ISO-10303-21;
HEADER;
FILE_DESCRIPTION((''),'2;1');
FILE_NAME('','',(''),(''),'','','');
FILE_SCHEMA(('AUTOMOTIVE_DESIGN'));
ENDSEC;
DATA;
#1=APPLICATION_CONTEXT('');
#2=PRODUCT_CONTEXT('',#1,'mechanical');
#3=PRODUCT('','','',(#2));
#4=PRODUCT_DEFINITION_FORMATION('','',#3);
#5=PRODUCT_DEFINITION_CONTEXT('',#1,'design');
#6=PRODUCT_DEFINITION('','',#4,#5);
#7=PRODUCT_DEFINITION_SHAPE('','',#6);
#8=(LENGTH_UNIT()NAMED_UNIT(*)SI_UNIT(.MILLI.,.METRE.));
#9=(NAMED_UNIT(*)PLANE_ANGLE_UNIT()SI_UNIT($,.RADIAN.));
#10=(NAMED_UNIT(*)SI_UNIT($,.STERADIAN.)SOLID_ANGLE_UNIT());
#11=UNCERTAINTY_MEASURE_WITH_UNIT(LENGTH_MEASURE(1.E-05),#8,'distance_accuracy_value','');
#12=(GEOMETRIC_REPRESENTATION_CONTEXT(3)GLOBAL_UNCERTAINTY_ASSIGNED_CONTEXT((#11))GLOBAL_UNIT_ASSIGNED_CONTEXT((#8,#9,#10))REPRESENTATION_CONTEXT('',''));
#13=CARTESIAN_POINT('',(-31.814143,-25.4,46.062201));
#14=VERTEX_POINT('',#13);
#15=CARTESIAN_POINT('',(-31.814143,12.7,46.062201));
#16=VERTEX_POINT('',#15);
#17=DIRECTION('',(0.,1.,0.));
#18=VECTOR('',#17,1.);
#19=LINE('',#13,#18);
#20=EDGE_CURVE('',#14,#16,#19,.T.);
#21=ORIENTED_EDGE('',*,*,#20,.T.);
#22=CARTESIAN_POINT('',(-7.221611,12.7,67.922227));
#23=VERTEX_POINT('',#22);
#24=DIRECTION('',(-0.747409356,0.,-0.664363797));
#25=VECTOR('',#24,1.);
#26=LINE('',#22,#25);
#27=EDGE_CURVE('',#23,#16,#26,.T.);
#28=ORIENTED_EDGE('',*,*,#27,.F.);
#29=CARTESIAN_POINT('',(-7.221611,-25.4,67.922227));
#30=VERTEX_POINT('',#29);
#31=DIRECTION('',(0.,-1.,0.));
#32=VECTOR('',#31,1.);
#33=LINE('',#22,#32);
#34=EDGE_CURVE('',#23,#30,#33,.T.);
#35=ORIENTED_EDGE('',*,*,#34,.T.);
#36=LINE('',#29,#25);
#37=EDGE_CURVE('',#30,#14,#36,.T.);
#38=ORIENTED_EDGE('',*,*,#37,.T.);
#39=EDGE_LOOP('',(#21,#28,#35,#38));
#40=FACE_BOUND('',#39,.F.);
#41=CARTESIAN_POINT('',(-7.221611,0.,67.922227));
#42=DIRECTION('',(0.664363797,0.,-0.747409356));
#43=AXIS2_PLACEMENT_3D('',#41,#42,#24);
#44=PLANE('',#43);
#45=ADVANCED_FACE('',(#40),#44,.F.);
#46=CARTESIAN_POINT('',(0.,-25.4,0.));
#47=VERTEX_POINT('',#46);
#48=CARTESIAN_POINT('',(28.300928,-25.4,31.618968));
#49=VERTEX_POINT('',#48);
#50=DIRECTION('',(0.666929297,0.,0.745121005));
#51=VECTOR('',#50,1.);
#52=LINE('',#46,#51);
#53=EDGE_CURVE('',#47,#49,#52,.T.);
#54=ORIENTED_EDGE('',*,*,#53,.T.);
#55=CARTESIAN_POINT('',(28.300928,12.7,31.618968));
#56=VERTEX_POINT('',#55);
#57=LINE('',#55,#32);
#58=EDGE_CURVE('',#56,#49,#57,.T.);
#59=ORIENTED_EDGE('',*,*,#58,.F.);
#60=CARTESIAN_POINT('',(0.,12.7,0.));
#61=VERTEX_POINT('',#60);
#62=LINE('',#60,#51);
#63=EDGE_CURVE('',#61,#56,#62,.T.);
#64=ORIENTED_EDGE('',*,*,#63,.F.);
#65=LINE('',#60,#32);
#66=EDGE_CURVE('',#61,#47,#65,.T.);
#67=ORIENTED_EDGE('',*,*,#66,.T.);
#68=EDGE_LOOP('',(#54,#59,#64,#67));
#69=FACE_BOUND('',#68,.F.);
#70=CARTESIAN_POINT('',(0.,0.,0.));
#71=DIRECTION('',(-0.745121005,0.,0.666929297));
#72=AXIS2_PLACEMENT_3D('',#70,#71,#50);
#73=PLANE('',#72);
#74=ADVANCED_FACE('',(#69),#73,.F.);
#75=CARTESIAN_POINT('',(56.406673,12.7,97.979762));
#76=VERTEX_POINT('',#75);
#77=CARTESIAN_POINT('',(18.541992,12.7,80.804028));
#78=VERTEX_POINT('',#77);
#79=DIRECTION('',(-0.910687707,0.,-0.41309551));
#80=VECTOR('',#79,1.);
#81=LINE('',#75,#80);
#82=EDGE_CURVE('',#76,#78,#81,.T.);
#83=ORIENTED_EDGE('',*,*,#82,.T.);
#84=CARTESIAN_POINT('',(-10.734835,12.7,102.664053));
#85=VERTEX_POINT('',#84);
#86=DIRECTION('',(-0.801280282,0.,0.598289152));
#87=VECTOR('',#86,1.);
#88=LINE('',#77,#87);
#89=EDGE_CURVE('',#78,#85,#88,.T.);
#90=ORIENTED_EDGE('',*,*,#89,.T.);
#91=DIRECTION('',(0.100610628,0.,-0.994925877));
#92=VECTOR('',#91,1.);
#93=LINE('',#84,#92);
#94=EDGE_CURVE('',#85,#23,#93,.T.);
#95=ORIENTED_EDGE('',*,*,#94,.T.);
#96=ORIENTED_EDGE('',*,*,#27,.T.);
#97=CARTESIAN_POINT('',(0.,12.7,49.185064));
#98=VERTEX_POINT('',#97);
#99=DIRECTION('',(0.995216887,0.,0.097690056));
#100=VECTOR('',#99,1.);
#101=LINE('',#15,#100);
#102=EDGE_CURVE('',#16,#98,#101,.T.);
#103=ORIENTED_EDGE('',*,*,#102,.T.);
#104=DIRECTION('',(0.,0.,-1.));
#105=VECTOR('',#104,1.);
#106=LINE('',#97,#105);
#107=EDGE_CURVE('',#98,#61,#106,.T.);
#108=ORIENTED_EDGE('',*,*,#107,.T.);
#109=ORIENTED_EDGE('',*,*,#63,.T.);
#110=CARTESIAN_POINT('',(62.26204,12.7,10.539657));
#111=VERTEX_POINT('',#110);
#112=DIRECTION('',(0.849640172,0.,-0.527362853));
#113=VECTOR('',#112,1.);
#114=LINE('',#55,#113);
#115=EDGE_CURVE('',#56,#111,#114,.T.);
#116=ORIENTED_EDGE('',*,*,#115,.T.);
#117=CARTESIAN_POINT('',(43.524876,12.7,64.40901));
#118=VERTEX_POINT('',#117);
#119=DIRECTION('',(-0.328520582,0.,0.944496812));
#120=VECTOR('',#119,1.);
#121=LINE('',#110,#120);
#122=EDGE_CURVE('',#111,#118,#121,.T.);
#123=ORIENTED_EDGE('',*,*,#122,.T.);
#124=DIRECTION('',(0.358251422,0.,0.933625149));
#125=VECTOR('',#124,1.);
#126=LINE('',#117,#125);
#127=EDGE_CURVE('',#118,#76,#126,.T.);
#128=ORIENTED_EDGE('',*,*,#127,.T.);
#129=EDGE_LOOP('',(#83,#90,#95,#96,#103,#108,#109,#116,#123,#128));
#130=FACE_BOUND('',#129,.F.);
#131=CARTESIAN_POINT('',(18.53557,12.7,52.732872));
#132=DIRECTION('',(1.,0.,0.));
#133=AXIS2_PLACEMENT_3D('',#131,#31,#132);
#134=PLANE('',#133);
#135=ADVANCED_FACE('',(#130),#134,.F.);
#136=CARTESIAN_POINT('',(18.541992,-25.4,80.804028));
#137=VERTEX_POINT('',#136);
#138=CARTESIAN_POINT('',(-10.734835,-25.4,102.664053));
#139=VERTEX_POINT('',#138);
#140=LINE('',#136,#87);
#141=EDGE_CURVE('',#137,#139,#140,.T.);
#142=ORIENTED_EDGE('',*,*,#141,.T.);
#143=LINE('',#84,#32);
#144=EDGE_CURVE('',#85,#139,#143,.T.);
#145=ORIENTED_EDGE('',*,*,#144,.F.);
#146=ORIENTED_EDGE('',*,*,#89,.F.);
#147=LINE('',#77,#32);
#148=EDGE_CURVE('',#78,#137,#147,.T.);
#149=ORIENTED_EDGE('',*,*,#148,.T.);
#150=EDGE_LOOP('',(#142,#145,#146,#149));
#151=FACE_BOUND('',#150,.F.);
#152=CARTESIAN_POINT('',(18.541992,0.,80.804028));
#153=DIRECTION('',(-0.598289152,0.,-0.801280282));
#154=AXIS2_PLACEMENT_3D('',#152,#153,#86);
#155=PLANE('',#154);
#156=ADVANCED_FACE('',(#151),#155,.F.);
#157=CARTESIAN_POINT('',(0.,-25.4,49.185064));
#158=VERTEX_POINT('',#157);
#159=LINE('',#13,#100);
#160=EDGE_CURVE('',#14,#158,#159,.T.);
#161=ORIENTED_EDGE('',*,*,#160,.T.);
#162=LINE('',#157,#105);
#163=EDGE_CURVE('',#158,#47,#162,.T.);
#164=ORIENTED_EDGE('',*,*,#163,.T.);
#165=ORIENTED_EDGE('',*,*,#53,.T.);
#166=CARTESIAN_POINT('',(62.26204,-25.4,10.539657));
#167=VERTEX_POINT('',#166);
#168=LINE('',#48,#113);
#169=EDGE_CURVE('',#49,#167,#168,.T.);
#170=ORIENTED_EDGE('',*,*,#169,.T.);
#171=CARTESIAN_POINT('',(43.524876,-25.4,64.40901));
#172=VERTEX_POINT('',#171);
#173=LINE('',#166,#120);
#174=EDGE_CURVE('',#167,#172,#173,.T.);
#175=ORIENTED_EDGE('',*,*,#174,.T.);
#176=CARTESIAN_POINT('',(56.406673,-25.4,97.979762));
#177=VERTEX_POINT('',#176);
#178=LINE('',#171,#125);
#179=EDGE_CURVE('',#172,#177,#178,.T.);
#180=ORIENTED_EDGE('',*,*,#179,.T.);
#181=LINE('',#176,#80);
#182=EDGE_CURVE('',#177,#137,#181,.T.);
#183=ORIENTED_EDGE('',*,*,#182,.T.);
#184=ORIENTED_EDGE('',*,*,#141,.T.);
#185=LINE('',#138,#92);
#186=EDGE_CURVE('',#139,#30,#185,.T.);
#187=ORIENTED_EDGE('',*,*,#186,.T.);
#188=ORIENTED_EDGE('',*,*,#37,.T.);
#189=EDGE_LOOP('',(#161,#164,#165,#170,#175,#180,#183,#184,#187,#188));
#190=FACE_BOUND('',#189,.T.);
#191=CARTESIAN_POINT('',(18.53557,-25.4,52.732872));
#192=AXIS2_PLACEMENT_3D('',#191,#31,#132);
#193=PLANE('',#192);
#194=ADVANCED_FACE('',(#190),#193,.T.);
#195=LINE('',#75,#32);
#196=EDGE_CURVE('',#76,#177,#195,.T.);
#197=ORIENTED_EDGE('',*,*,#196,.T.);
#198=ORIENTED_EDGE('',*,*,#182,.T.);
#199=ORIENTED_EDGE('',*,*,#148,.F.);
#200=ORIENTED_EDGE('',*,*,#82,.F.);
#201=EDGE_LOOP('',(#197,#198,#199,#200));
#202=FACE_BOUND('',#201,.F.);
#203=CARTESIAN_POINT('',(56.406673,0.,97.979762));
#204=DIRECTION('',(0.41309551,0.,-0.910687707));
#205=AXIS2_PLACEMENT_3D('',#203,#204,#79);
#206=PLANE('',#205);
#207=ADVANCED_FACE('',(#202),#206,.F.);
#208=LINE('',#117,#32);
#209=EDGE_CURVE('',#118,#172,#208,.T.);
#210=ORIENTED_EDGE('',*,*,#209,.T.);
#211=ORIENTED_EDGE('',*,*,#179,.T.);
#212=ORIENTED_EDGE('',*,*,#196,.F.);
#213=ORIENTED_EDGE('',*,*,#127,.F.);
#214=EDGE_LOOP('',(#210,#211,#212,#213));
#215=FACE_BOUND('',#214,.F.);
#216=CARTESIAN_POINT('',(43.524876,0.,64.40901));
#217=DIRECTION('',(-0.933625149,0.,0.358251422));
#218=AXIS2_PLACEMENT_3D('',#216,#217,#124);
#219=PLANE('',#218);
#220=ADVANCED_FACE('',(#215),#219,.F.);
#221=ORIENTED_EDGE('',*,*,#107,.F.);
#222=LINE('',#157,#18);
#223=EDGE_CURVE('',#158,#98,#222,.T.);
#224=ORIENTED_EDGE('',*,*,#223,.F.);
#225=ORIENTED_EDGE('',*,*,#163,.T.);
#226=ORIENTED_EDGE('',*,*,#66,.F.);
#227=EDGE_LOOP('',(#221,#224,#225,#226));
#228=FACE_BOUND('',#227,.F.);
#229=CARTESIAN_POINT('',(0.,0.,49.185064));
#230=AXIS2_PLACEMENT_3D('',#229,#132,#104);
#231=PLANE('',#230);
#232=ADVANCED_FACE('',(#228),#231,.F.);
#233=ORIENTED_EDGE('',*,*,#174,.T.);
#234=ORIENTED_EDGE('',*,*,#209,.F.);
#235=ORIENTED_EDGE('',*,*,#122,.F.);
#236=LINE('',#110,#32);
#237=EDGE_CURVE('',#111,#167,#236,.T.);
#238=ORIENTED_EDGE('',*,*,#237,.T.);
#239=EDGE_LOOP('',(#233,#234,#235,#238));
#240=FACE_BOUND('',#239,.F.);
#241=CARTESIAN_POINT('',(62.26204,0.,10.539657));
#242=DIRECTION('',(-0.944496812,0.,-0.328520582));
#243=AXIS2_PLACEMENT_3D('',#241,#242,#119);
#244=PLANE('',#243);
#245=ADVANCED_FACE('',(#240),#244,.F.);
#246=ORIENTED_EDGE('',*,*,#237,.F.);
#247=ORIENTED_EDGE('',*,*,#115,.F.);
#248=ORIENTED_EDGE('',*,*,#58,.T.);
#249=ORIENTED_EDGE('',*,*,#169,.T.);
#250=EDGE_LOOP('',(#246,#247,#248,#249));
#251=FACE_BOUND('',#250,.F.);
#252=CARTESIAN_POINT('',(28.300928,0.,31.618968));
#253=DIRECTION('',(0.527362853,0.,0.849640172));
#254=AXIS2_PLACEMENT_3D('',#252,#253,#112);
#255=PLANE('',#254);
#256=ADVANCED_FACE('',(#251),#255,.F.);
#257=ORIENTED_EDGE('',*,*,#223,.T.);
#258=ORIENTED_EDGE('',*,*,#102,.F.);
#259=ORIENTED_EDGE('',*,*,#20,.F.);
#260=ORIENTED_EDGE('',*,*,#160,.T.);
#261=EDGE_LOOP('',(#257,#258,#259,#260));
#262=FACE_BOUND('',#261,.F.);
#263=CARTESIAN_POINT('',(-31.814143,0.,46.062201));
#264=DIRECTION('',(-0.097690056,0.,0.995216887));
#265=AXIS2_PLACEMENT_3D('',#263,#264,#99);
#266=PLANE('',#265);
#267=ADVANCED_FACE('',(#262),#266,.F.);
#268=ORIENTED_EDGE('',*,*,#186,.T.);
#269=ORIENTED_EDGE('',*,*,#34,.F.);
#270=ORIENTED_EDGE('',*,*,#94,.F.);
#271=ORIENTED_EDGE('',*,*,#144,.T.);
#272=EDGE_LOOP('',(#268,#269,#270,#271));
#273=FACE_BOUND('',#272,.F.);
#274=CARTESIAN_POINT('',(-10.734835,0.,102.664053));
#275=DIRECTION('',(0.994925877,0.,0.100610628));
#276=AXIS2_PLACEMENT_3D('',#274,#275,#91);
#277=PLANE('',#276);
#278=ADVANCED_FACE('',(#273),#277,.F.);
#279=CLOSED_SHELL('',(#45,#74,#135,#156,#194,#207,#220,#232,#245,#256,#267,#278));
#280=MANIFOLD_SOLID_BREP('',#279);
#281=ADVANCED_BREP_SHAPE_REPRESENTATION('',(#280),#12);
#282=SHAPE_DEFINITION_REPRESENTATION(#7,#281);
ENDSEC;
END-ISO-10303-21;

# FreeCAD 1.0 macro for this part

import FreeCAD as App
import Part
import Sketcher
from FreeCAD import Vector
Q = App.Units.Quantity

doc = App.newDocument("Part")
body = doc.addObject("PartDesign::Body", "Body")

# Sketch on XZ plane
sketch1 = body.newObject("Sketcher::SketchObject", "Sketch")
sketch1.AttachmentSupport = (doc.getObject("XZ_Plane"), [""])
sketch1.MapMode = "FlatFace"
sketch1.addGeometry([
    Part.LineSegment(Vector(0, 49, 0), Vector(0, 0, 0)),  # 0
    Part.LineSegment(Vector(0, 0, 0), Vector(28, 32, 0)),  # 1
    Part.LineSegment(Vector(28, 32, 0), Vector(62, 11, 0)),  # 2
    Part.LineSegment(Vector(62, 11, 0), Vector(44, 64, 0)),  # 3
    Part.LineSegment(Vector(44, 64, 0), Vector(56, 98, 0)),  # 4
    Part.LineSegment(Vector(56, 98, 0), Vector(19, 81, 0)),  # 5
    Part.LineSegment(Vector(19, 81, 0), Vector(-11, 103, 0)),  # 6
    Part.LineSegment(Vector(-11, 103, 0), Vector(-7, 68, 0)),  # 7
    Part.LineSegment(Vector(-7, 68, 0), Vector(-32, 46, 0)),  # 8
    Part.LineSegment(Vector(-32, 46, 0), Vector(0, 49, 0)),  # 9
], False)
sketch1.addConstraint([
    Sketcher.Constraint("Coincident", 0, 2, 1, 1),
    Sketcher.Constraint("Coincident", 1, 2, 2, 1),
    Sketcher.Constraint("Coincident", 2, 2, 3, 1),
    Sketcher.Constraint("Coincident", 3, 2, 4, 1),
    Sketcher.Constraint("Coincident", 4, 2, 5, 1),
    Sketcher.Constraint("Coincident", 5, 2, 6, 1),
    Sketcher.Constraint("Coincident", 6, 2, 7, 1),
    Sketcher.Constraint("Coincident", 7, 2, 8, 1),
    Sketcher.Constraint("Coincident", 8, 2, 9, 1),
    Sketcher.Constraint("Coincident", 9, 2, 0, 1),
    Sketcher.Constraint("Vertical", 0),
    Sketcher.Constraint("Coincident", 0, 2, -1, 1),
    Sketcher.Constraint("Distance", 8, Q("32.903698 mm")),
    Sketcher.Constraint("DistanceY", -1, 1, 8, 2, Q("46.062201 mm")),
    Sketcher.Constraint("DistanceY", 7, 2, 5, 2, Q("12.881801 mm")),
    Sketcher.Constraint("Distance", 2, Q("39.97117 mm")),
    Sketcher.Constraint("Distance", 4, Q("35.95742 mm")),
    Sketcher.Constraint("Distance", 5, Q("41.578118 mm")),
    Sketcher.Constraint("Distance", 6, Q("36.53756 mm")),
    Sketcher.Constraint("Distance", 7, Q("34.91901 mm")),
    Sketcher.Constraint("DistanceY", 0, 2, 0, 1, Q("49.185064 mm")),
    Sketcher.Constraint("DistanceX", -1, 1, 2, 2, Q("62.26204 mm")),
    Sketcher.Constraint("DistanceY", -1, 1, 3, 2, Q("64.40901 mm")),
    Sketcher.Constraint("DistanceY", -1, 1, 4, 2, Q("97.979762 mm")),
    Sketcher.Constraint("DistanceX", -1, 1, 5, 2, Q("18.541992 mm")),
    Sketcher.Constraint("DistanceX", 7, 2, -1, 1, Q("7.221611 mm")),
    Sketcher.Constraint("DistanceX", 1, 2, 2, 2, Q("33.961112 mm")),
    Sketcher.Constraint("DistanceX", 1, 2, 3, 2, Q("15.223948 mm")),
    Sketcher.Constraint("DistanceY", 1, 2, 5, 2, Q("49.18506 mm")),
])
pad1 = body.newObject("PartDesign::Pad", "Pad")
pad1.Profile = sketch1
pad1.Length = Q("1 in")
pad1.Midplane = True

# Sketch on XZ plane
sketch2 = body.newObject("Sketcher::SketchObject", "Sketch001")
sketch2.AttachmentSupport = (doc.getObject("XZ_Plane"), [""])
sketch2.MapMode = "FlatFace"
sketch2.addGeometry([
    Part.LineSegment(Vector(0, 49, 0), Vector(0, 0, 0)),  # 0
    Part.LineSegment(Vector(0, 0, 0), Vector(28, 32, 0)),  # 1
    Part.LineSegment(Vector(28, 32, 0), Vector(62, 11, 0)),  # 2
    Part.LineSegment(Vector(62, 11, 0), Vector(44, 64, 0)),  # 3
    Part.LineSegment(Vector(44, 64, 0), Vector(56, 98, 0)),  # 4
    Part.LineSegment(Vector(56, 98, 0), Vector(19, 81, 0)),  # 5
    Part.LineSegment(Vector(19, 81, 0), Vector(-11, 103, 0)),  # 6
    Part.LineSegment(Vector(-11, 103, 0), Vector(-7, 68, 0)),  # 7
    Part.LineSegment(Vector(-7, 68, 0), Vector(-32, 46, 0)),  # 8
    Part.LineSegment(Vector(-32, 46, 0), Vector(0, 49, 0)),  # 9
], False)
sketch2.addConstraint([
    Sketcher.Constraint("Coincident", 0, 2, 1, 1),
    Sketcher.Constraint("Coincident", 1, 2, 2, 1),
    Sketcher.Constraint("Coincident", 2, 2, 3, 1),
    Sketcher.Constraint("Coincident", 3, 2, 4, 1),
    Sketcher.Constraint("Coincident", 4, 2, 5, 1),
    Sketcher.Constraint("Coincident", 5, 2, 6, 1),
    Sketcher.Constraint("Coincident", 6, 2, 7, 1),
    Sketcher.Constraint("Coincident", 7, 2, 8, 1),
    Sketcher.Constraint("Coincident", 8, 2, 9, 1),
    Sketcher.Constraint("Coincident", 9, 2, 0, 1),
    Sketcher.Constraint("Vertical", 0),
    Sketcher.Constraint("Coincident", 0, 2, -1, 1),
    Sketcher.Constraint("Distance", 8, Q("32.903698 mm")),
    Sketcher.Constraint("DistanceY", -1, 1, 8, 2, Q("46.062201 mm")),
    Sketcher.Constraint("DistanceY", 7, 2, 5, 2, Q("12.881801 mm")),
    Sketcher.Constraint("Distance", 2, Q("39.97117 mm")),
    Sketcher.Constraint("Distance", 4, Q("35.95742 mm")),
    Sketcher.Constraint("Distance", 5, Q("41.578118 mm")),
    Sketcher.Constraint("Distance", 6, Q("36.53756 mm")),
    Sketcher.Constraint("Distance", 7, Q("34.91901 mm")),
    Sketcher.Constraint("DistanceY", 0, 2, 0, 1, Q("49.185064 mm")),
    Sketcher.Constraint("DistanceX", -1, 1, 2, 2, Q("62.26204 mm")),
    Sketcher.Constraint("DistanceY", -1, 1, 3, 2, Q("64.40901 mm")),
    Sketcher.Constraint("DistanceY", -1, 1, 4, 2, Q("97.979762 mm")),
    Sketcher.Constraint("DistanceX", -1, 1, 5, 2, Q("18.541992 mm")),
    Sketcher.Constraint("DistanceX", 7, 2, -1, 1, Q("7.221611 mm")),
    Sketcher.Constraint("DistanceX", 1, 2, 2, 2, Q("33.961112 mm")),
    Sketcher.Constraint("DistanceX", 1, 2, 3, 2, Q("15.223948 mm")),
    Sketcher.Constraint("DistanceY", 1, 2, 5, 2, Q("49.18506 mm")),
])
pad2 = body.newObject("PartDesign::Pad", "Pad001")
pad2.Profile = sketch2
pad2.Length = Q("1 in")

doc.recompute()
